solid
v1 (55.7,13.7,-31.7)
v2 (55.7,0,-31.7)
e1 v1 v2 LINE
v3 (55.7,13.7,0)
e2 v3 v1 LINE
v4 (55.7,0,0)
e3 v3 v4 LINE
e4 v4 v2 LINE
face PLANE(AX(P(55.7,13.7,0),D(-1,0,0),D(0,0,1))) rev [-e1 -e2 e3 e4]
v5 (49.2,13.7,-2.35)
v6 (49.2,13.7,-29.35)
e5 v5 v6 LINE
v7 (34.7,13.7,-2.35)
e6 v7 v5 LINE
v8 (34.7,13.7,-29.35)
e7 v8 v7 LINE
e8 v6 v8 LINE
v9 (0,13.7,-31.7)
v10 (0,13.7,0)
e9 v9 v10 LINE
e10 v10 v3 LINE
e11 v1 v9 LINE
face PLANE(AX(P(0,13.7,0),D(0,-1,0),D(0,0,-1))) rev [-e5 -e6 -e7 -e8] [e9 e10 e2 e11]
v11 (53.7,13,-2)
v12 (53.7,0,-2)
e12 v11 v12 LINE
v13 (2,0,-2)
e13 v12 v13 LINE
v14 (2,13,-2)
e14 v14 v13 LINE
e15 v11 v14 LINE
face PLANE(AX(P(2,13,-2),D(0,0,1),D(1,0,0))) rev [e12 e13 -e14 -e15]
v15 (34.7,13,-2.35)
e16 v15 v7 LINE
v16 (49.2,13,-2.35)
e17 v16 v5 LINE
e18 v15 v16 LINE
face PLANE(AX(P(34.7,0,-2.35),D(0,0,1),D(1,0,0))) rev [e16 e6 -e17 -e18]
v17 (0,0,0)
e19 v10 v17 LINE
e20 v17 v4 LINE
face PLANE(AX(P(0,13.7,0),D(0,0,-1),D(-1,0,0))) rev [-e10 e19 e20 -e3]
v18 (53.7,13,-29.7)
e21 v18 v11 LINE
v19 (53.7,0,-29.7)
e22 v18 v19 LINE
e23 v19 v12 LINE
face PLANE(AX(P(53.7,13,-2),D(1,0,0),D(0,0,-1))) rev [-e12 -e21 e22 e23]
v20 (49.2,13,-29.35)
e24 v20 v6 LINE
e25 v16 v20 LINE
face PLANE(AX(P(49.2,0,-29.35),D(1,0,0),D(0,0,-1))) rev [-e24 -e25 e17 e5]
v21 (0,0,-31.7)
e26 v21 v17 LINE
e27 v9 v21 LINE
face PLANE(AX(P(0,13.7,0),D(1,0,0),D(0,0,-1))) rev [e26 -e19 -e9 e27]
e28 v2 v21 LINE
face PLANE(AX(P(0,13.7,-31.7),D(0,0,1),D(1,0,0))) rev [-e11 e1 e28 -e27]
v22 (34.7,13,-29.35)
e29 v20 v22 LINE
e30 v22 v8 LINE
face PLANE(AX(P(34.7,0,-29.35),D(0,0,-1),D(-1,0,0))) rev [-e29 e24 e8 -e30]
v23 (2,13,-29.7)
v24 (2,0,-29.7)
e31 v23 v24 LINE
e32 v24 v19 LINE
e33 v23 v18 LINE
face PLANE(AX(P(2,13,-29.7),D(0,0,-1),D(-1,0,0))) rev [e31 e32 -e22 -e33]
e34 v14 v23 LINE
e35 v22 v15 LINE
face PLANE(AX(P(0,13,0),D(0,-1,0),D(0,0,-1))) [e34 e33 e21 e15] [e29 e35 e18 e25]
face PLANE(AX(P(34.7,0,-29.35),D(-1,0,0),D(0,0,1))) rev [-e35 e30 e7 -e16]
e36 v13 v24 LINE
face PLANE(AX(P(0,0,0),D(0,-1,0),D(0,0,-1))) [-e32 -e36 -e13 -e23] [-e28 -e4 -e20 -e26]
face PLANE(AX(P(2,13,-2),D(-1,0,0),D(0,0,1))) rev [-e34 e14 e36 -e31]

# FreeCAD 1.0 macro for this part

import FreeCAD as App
import Part
import Sketcher
from FreeCAD import Vector

doc = App.newDocument("Part")
body = doc.addObject("PartDesign::Body", "Body")

sketch1 = body.newObject("Sketcher::SketchObject", "Sketch")
sketch1.AttachmentSupport = (doc.getObject("XZ_Plane"), [""])
sketch1.MapMode = "FlatFace"
sketch1.addGeometry([
    Part.LineSegment(Vector(0, -31.7, 0), Vector(0, 0, 0)),
    Part.LineSegment(Vector(0, 0, 0), Vector(55.7, 0, 0)),
    Part.LineSegment(Vector(55.7, 0, 0), Vector(55.7, -31.7, 0)),
    Part.LineSegment(Vector(55.7, -31.7, 0), Vector(0, -31.7, 0)),
], False)
sketch1.addConstraint([
    Sketcher.Constraint("Coincident", 0, 2, 1, 1),
    Sketcher.Constraint("Coincident", 1, 2, 2, 1),
    Sketcher.Constraint("Coincident", 2, 2, 3, 1),
    Sketcher.Constraint("Coincident", 3, 2, 0, 1),
    Sketcher.Constraint("Vertical", 0),
    Sketcher.Constraint("Horizontal", 1),
    Sketcher.Constraint("Vertical", 2),
    Sketcher.Constraint("Horizontal", 3),
    Sketcher.Constraint("Coincident", 0, 2, -1, 1),
    Sketcher.Constraint("DistanceX", 1, 1, 1, 2, 55.7),
    Sketcher.Constraint("DistanceY", 0, 1, 0, 2, 31.7),
])
pad1 = body.newObject("PartDesign::Pad", "Pad")
pad1.Profile = sketch1
pad1.Length = 13.7
pad1.Reversed = True

sketch2 = body.newObject("Sketcher::SketchObject", "Sketch001")
sketch2.AttachmentSupport = (doc.getObject("XZ_Plane"), [""])
sketch2.MapMode = "FlatFace"
sketch2.AttachmentOffset = App.Placement(Vector(0, 0, -13.7), App.Rotation())
sketch2.addGeometry([
    Part.LineSegment(Vector(34.7, -29.35, 0), Vector(34.7, -2.35, 0)),
    Part.LineSegment(Vector(34.7, -2.35, 0), Vector(49.2, -2.35, 0)),
    Part.LineSegment(Vector(49.2, -2.35, 0), Vector(49.2, -29.35, 0)),
    Part.LineSegment(Vector(49.2, -29.35, 0), Vector(34.7, -29.35, 0)),
], False)
sketch2.addConstraint([
    Sketcher.Constraint("Coincident", 0, 2, 1, 1),
    Sketcher.Constraint("Coincident", 1, 2, 2, 1),
    Sketcher.Constraint("Coincident", 2, 2, 3, 1),
    Sketcher.Constraint("Coincident", 3, 2, 0, 1),
    Sketcher.Constraint("Vertical", 0),
    Sketcher.Constraint("Horizontal", 1),
    Sketcher.Constraint("Vertical", 2),
    Sketcher.Constraint("Horizontal", 3),
    Sketcher.Constraint("DistanceY", 0, 1, 0, 2, 27.0),
    Sketcher.Constraint("DistanceX", 1, 1, 1, 2, 14.5),
    Sketcher.Constraint("DistanceX", -1, 1, 0, 2, 34.7),
    Sketcher.Constraint("DistanceY", 0, 2, -1, 1, 2.35),
])
pocket1 = body.newObject("PartDesign::Pocket", "Pocket")
pocket1.Profile = sketch2
pocket1.Length = 13.7
pocket1.Reversed = True

sketch3 = body.newObject("Sketcher::SketchObject", "Sketch002")
sketch3.AttachmentSupport = (doc.getObject("XZ_Plane"), [""])
sketch3.MapMode = "FlatFace"
sketch3.addGeometry([
    Part.LineSegment(Vector(2, -2, 0), Vector(2, -29.7, 0)),
    Part.LineSegment(Vector(2, -29.7, 0), Vector(53.7, -29.7, 0)),
    Part.LineSegment(Vector(53.7, -29.7, 0), Vector(53.7, -2, 0)),
    Part.LineSegment(Vector(53.7, -2, 0), Vector(2, -2, 0)),
], False)
sketch3.addConstraint([
    Sketcher.Constraint("Coincident", 0, 2, 1, 1),
    Sketcher.Constraint("Coincident", 1, 2, 2, 1),
    Sketcher.Constraint("Coincident", 2, 2, 3, 1),
    Sketcher.Constraint("Coincident", 3, 2, 0, 1),
    Sketcher.Constraint("Vertical", 0),
    Sketcher.Constraint("Horizontal", 1),
    Sketcher.Constraint("Vertical", 2),
    Sketcher.Constraint("Horizontal", 3),
    Sketcher.Constraint("DistanceX", 1, 1, 1, 2, 51.7),
    Sketcher.Constraint("DistanceY", 0, 2, 0, 1, 27.7),
    Sketcher.Constraint("DistanceX", -1, 1, 0, 2, 2.0),
    Sketcher.Constraint("DistanceY", 2, 2, -1, 1, 2.0),
])
pocket2 = body.newObject("PartDesign::Pocket", "Pocket001")
pocket2.Profile = sketch3
pocket2.Length = 13

doc.recompute()
